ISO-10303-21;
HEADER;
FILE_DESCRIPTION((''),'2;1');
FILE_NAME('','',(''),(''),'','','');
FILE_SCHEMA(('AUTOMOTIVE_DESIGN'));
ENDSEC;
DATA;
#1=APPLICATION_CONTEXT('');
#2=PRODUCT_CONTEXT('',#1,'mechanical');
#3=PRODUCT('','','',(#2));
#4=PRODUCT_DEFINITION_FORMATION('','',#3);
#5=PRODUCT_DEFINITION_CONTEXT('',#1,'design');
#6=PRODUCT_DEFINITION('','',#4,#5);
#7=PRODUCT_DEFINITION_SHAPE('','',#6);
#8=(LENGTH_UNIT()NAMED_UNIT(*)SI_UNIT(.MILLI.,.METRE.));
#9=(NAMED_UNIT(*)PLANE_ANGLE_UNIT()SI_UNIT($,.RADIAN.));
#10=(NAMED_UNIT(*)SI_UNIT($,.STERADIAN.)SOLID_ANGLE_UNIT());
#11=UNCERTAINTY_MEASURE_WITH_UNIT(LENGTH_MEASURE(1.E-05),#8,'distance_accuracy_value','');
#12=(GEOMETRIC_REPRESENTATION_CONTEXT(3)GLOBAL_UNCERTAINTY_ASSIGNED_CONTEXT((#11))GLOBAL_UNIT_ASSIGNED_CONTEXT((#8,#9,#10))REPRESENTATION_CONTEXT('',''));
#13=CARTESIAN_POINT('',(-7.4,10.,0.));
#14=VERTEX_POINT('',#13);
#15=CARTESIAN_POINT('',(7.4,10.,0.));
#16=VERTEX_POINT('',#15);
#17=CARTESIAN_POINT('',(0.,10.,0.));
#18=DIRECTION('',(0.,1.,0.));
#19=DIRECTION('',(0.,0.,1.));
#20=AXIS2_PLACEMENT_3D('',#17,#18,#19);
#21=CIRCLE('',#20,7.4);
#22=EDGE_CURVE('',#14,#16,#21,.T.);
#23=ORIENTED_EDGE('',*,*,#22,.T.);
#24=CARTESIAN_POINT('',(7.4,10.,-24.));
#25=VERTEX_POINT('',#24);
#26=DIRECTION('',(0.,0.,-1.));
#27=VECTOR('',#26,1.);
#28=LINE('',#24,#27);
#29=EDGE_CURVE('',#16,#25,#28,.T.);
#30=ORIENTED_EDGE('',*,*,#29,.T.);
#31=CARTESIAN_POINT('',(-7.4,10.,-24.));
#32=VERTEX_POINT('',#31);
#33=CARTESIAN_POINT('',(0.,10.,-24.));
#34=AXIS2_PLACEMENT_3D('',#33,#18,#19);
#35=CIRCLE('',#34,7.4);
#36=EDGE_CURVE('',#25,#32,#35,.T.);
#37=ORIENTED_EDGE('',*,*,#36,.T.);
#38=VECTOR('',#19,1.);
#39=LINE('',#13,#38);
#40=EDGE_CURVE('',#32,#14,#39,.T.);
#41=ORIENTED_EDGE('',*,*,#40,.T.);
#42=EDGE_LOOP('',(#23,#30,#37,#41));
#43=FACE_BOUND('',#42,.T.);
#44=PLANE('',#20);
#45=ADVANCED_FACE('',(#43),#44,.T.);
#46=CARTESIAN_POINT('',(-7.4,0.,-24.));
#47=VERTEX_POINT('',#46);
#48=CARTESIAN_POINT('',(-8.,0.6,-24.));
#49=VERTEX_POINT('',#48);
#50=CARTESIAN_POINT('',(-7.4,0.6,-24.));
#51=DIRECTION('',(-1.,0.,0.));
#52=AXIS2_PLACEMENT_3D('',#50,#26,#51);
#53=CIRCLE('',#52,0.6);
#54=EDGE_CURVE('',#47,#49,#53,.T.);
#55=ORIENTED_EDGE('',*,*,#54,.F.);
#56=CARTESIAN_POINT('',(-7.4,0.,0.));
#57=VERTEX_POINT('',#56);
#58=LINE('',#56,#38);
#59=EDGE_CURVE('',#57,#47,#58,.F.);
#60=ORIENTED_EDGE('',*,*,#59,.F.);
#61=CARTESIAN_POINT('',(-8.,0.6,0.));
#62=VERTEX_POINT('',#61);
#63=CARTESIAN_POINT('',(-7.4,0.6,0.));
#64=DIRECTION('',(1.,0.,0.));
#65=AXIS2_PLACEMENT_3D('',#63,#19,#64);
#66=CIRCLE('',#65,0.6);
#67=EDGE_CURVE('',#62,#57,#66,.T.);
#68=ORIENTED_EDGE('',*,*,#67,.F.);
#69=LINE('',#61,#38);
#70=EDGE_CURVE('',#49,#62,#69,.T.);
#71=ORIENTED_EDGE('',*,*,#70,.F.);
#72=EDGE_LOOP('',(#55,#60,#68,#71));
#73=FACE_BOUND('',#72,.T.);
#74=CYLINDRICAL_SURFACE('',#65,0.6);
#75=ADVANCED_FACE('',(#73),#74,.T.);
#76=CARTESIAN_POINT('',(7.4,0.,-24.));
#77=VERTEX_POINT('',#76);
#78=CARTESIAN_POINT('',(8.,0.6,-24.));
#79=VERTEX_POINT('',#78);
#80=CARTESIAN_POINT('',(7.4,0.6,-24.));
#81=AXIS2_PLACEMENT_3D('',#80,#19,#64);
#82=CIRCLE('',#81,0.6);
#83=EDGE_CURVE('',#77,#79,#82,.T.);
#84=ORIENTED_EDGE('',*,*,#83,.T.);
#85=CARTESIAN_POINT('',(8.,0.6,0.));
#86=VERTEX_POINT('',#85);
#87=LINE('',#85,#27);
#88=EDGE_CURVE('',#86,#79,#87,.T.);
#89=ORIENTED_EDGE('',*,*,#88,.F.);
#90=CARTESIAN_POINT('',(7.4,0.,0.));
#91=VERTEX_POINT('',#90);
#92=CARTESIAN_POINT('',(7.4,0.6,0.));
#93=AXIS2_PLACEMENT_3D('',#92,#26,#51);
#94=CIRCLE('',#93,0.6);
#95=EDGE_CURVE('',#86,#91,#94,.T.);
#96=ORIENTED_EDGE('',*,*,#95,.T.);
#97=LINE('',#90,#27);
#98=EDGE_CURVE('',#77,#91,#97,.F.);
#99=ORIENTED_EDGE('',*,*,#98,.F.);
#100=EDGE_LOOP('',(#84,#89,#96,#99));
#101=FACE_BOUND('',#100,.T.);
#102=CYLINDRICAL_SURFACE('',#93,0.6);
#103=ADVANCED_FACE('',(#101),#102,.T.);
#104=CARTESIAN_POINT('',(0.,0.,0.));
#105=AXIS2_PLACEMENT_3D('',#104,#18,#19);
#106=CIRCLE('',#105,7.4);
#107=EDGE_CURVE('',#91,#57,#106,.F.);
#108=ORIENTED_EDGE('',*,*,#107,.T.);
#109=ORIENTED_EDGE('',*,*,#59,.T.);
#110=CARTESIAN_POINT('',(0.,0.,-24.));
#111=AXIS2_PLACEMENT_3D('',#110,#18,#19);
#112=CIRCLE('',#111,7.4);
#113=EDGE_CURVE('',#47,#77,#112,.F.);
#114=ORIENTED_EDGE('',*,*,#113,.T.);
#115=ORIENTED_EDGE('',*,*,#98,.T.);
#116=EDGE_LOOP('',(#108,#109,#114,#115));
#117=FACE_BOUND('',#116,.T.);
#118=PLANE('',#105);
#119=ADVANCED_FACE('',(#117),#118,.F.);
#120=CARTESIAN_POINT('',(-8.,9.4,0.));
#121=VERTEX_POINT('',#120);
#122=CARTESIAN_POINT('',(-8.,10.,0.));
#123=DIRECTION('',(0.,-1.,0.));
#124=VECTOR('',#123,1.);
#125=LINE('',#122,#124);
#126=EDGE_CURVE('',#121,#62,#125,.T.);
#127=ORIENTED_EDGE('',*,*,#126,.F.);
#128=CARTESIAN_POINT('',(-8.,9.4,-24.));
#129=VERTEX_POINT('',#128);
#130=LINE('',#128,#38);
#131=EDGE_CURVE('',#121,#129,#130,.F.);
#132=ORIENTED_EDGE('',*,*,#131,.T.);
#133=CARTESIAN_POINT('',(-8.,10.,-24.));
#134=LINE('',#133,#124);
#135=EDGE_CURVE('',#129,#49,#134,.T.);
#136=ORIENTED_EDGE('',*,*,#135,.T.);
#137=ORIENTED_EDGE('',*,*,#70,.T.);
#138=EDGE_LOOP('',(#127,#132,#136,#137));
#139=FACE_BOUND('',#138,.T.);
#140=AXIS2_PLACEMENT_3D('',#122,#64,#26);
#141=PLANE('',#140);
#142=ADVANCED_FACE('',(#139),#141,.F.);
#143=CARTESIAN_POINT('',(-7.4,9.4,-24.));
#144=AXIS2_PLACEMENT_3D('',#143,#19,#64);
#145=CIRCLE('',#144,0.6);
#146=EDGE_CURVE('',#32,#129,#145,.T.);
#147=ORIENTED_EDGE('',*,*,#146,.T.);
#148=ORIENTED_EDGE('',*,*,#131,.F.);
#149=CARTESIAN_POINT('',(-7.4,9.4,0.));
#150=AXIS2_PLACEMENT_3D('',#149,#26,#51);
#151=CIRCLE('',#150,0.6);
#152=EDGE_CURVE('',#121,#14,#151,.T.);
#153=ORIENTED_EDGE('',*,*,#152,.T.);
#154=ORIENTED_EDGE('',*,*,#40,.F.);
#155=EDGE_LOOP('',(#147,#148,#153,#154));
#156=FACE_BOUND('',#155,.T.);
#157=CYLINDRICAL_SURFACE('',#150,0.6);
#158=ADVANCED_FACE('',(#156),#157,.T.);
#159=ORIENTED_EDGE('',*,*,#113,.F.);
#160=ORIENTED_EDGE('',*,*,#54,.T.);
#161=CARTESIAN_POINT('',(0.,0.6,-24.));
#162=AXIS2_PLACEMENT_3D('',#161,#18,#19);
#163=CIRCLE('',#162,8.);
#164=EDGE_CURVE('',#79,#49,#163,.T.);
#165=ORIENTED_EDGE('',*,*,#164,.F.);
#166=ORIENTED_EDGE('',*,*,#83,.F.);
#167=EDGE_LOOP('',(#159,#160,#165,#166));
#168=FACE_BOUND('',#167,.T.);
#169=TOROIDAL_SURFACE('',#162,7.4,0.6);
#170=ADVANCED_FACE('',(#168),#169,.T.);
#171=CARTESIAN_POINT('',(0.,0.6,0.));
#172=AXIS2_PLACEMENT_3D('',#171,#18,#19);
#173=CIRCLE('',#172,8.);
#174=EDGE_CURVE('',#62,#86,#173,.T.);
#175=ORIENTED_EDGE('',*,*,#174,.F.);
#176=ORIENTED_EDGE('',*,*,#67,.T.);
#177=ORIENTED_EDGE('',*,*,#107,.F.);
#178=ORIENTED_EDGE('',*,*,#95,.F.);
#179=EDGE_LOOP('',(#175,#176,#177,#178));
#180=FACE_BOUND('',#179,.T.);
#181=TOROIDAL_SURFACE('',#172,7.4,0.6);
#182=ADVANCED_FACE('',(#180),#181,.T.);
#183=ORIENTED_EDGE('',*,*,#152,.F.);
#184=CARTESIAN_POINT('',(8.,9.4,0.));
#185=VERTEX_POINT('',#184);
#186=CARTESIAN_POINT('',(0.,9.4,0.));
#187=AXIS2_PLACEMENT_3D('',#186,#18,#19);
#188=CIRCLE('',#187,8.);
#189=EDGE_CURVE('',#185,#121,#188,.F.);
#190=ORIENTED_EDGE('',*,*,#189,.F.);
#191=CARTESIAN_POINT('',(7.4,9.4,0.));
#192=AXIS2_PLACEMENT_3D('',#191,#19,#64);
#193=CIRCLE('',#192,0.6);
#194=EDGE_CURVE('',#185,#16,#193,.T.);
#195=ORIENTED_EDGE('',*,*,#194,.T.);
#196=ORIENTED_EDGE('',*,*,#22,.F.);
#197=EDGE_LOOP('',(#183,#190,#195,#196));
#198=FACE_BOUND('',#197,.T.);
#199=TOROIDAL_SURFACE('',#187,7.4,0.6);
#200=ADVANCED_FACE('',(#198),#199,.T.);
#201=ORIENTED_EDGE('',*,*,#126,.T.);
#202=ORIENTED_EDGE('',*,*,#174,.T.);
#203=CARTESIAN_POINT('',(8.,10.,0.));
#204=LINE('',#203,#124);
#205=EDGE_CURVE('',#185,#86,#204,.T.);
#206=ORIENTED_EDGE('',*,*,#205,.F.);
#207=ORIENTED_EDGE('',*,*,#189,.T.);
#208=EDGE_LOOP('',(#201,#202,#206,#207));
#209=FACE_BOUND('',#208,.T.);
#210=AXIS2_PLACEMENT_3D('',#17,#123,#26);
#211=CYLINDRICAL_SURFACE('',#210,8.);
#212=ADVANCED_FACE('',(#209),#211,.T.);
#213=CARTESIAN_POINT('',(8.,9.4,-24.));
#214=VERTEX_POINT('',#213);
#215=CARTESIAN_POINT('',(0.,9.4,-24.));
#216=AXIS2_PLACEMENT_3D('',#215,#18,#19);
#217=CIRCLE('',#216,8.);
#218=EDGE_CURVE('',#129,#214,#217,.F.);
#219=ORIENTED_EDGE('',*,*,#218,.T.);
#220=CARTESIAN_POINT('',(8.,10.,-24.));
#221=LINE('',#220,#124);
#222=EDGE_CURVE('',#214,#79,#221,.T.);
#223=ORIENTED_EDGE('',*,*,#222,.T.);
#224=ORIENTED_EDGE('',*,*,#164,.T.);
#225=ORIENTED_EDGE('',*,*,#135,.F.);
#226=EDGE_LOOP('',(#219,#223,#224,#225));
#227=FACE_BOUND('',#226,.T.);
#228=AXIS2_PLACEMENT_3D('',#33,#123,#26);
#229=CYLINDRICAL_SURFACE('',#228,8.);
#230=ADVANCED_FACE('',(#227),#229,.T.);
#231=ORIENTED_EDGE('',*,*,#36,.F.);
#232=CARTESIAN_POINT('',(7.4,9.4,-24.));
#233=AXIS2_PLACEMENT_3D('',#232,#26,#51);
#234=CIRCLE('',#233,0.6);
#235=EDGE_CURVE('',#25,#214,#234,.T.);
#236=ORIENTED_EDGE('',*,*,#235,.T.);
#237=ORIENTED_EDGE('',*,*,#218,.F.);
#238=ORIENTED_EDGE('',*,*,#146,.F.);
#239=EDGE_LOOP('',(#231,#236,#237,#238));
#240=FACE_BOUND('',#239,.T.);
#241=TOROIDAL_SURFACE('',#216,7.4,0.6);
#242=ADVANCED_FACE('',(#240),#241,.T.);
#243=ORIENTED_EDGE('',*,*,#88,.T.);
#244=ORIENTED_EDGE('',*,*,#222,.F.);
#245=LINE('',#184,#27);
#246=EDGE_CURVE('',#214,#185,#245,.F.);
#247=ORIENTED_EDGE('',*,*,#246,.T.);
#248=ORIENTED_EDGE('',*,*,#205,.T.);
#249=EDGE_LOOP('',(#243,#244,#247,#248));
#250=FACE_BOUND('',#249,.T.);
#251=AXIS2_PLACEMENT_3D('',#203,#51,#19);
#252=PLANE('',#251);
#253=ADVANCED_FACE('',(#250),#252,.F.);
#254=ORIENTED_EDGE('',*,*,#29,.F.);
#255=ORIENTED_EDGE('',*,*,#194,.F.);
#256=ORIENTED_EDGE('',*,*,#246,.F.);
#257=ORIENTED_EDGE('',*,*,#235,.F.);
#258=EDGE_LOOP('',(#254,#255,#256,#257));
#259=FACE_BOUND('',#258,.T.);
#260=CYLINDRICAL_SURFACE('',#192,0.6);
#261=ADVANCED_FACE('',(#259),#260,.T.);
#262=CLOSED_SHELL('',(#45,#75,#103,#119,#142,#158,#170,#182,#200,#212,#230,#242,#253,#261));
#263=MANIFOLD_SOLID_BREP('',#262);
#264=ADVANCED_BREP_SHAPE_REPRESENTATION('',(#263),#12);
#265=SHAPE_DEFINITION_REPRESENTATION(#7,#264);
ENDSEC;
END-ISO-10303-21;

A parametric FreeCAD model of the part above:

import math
import FreeCAD as App
import Part
import Sketcher


def edges_at(feature, points):
    """Names of the edges that pass closest to the given points."""
    edges = feature.Shape.Edges
    near = lambda p: min(range(len(edges)), key=lambda i: edges[i].distToShape(Part.Vertex(*p))[0])
    return sorted({f"Edge{near(p) + 1}" for p in points})

doc = App.newDocument("Part")
body = doc.addObject("PartDesign::Body", "Body")

# Sketch on XZ plane
sketch1 = body.newObject("Sketcher::SketchObject", "Sketch")
sketch1.AttachmentSupport = (doc.getObject("XZ_Plane"), [""])
sketch1.MapMode = "FlatFace"
sketch1.addGeometry(Part.LineSegment(App.Vector(-8, -24, 0), App.Vector(-8, 0, 0)), False)
sketch1.addGeometry(Part.ArcOfCircle(Part.Circle(App.Vector(0, 0, 0), App.Vector(0, 0, 1), 8), math.radians(0), math.radians(180)), False)
sketch1.addGeometry(Part.LineSegment(App.Vector(8, 0, 0), App.Vector(8, -24, 0)), False)
sketch1.addGeometry(Part.ArcOfCircle(Part.Circle(App.Vector(0, -24, 0), App.Vector(0, 0, 1), 8), math.radians(180), math.radians(360)), False)
sketch1.addConstraint(Sketcher.Constraint("Tangent", 0, 2, 1, 2))
sketch1.addConstraint(Sketcher.Constraint("Tangent", 1, 1, 2, 1))
sketch1.addConstraint(Sketcher.Constraint("Tangent", 2, 2, 3, 2))
sketch1.addConstraint(Sketcher.Constraint("Tangent", 3, 1, 0, 1))
sketch1.addConstraint(Sketcher.Constraint("Vertical", 0))
sketch1.addConstraint(Sketcher.Constraint("Vertical", 2))
sketch1.addConstraint(Sketcher.Constraint("Coincident", 1, 3, -1, 1))
sketch1.addConstraint(Sketcher.Constraint("Radius", 1, 8.0))
sketch1.addConstraint(Sketcher.Constraint("DistanceY", 0, 1, 0, 2, 24.0))
pad1 = body.newObject("PartDesign::Pad", "Pad")
pad1.Profile = sketch1
pad1.Length = 10
pad1.Reversed = True
doc.recompute()

fillet = body.newObject("PartDesign::Fillet", "Fillet")
fillet.Base = (pad1, edges_at(pad1, [
    (0, 10, -32),
    (-8, 10, -12),
    (0, 10, 8),
    (-8, 0, -12),
    (0, 0, -32),
    (8, 0, -12),
    (0, 0, 8),
    (8, 10, -12),
]))
fillet.Radius = 0.6

doc.recompute()
